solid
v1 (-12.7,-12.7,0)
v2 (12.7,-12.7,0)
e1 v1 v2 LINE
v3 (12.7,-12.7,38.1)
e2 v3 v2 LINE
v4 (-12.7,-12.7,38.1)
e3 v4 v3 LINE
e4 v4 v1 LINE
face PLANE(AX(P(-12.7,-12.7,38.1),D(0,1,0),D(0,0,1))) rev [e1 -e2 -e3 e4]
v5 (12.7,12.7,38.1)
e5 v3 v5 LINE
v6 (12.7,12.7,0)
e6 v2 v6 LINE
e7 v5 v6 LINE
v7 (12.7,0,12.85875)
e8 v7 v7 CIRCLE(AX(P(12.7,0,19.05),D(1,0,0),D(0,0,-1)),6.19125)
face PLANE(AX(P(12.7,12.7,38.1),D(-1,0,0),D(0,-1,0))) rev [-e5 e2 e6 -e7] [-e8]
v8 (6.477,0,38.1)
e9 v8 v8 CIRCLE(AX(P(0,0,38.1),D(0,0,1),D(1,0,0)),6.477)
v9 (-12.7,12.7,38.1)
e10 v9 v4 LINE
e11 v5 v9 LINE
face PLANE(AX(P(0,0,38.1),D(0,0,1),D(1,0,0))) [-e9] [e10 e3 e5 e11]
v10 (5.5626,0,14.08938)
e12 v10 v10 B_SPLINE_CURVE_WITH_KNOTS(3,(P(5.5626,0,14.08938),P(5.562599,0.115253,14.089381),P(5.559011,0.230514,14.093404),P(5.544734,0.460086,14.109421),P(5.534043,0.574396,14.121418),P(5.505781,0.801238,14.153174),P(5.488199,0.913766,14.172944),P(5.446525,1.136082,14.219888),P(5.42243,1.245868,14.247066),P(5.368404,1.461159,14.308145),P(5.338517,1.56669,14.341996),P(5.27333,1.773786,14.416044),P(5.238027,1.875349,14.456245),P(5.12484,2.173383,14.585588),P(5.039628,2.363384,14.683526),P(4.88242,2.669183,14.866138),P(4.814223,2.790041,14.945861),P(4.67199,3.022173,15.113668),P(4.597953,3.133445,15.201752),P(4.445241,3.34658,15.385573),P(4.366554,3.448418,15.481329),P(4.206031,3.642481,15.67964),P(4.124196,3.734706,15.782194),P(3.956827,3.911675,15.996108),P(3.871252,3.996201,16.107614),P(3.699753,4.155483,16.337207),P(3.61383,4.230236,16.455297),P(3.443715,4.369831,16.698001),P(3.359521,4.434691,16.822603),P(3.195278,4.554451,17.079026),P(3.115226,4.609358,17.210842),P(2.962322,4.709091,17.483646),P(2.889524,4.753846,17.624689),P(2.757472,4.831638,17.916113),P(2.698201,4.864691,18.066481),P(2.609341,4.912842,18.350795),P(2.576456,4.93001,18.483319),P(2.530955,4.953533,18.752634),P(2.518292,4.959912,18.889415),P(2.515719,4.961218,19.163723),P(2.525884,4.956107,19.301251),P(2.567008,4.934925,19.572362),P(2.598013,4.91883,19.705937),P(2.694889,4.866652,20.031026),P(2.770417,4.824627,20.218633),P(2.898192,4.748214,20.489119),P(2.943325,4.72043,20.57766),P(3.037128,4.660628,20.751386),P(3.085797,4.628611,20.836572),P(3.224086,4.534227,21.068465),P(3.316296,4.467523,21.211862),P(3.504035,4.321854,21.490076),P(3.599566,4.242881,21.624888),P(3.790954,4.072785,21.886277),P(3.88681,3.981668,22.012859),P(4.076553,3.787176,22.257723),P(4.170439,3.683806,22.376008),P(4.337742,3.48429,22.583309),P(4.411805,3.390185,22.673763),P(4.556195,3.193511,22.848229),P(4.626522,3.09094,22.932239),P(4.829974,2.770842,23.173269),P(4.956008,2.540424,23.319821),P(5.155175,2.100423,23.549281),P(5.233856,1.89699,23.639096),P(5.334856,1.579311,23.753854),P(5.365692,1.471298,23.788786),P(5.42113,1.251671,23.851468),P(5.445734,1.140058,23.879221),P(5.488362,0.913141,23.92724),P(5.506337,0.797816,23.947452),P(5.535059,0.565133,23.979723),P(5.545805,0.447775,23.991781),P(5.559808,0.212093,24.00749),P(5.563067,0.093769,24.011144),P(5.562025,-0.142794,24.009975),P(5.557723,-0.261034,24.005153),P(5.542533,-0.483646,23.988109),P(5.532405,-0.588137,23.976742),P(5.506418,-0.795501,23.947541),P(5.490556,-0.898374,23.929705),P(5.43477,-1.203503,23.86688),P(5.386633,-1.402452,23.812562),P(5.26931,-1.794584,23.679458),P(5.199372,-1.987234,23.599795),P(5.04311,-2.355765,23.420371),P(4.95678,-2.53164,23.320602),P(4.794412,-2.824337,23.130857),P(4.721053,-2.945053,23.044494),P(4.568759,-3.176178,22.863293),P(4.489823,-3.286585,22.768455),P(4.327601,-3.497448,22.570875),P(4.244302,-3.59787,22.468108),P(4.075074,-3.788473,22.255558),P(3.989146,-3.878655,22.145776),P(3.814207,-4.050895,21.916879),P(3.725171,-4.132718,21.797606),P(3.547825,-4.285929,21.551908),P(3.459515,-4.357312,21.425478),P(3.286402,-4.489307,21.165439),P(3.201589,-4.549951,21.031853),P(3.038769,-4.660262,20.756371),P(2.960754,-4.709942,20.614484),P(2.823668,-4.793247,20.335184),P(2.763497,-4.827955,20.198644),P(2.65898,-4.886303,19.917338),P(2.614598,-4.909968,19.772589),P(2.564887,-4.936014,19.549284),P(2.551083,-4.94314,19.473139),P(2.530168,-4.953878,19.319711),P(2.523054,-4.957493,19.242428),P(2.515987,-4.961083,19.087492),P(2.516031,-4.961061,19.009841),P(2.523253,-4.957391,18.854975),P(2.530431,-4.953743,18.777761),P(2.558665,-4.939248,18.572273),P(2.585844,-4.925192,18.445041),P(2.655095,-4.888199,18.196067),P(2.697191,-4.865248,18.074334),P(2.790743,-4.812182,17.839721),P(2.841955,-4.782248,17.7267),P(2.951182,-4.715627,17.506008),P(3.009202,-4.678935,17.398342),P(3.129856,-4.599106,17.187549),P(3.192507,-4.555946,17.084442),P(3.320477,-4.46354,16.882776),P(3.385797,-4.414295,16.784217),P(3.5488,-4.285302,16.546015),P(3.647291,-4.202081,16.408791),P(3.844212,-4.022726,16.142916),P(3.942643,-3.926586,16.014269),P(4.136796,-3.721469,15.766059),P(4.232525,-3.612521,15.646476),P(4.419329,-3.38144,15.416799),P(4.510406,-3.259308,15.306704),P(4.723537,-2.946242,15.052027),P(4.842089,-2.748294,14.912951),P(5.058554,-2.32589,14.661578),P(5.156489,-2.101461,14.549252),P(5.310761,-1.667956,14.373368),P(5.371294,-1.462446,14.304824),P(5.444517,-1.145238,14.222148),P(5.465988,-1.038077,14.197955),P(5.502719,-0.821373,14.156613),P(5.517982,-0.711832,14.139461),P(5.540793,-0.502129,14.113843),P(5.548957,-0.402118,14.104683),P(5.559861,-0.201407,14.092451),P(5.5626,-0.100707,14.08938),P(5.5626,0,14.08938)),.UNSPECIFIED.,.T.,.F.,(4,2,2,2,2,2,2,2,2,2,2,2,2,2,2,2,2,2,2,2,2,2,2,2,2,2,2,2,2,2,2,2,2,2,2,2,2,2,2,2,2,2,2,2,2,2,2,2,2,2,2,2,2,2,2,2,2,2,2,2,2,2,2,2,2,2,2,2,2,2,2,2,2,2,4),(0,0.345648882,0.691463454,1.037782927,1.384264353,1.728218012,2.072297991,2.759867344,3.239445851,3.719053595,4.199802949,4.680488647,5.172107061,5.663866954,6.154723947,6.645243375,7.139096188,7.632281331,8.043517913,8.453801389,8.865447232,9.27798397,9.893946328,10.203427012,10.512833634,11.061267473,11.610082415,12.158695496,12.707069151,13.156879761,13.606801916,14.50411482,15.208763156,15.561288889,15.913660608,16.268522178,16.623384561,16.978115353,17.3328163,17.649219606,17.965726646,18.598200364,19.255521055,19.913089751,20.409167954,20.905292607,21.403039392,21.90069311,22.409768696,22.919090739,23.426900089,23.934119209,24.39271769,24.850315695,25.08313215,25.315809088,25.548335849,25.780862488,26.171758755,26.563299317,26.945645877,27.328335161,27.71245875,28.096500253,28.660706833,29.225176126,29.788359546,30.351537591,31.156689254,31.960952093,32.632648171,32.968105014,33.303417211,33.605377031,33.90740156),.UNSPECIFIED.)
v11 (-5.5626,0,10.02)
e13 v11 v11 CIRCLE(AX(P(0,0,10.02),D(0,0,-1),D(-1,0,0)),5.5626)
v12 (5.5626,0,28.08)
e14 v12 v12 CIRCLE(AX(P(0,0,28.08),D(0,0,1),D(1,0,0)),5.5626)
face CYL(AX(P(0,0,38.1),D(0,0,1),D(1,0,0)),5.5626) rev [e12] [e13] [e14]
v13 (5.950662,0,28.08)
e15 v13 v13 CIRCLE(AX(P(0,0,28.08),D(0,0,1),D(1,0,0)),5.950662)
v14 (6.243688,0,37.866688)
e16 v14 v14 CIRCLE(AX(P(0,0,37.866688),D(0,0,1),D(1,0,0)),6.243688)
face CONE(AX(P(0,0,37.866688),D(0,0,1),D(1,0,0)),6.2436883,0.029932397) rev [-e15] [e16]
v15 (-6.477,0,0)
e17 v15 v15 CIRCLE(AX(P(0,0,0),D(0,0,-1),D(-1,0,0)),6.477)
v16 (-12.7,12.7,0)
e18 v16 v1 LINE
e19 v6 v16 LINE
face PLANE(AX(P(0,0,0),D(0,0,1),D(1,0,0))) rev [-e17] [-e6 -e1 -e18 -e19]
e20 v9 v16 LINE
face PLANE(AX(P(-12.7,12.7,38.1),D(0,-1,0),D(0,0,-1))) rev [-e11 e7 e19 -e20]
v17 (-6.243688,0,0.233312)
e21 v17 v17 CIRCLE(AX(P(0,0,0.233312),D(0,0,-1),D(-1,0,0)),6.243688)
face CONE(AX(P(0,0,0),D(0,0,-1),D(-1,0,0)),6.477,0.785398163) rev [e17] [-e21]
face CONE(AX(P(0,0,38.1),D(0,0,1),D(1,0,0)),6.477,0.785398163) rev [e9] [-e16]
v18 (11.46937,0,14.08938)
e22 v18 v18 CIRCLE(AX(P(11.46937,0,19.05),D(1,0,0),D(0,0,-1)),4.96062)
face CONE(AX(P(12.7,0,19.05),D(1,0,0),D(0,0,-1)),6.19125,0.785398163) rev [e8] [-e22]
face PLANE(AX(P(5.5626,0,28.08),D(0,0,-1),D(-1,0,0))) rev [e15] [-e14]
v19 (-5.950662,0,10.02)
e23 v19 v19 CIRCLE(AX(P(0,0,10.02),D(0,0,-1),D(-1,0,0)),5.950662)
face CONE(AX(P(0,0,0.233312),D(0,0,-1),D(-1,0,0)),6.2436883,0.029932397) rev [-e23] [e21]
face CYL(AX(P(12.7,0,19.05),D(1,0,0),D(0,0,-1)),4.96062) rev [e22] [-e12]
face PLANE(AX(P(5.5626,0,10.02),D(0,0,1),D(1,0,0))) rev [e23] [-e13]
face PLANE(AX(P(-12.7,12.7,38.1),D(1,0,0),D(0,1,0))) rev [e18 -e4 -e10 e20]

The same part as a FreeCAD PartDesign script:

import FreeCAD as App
import Part
import Sketcher

V = App.Vector
Q = App.Units.Quantity

doc = App.newDocument("Part")
body = doc.addObject("PartDesign::Body", "Body")

sketch1 = body.newObject("Sketcher::SketchObject", "Sketch")
sketch1.AttachmentSupport = (doc.getObject("XY_Plane"), [""])
sketch1.MapMode = "FlatFace"
sketch1.addGeometry([
    Part.LineSegment(V(-13, 13, 0), V(-13, -13, 0)),
    Part.LineSegment(V(-13, -13, 0), V(13, -13, 0)),
    Part.LineSegment(V(13, -13, 0), V(13, 13, 0)),
    Part.LineSegment(V(13, 13, 0), V(-13, 13, 0)),
], False)
sketch1.addConstraint([
    Sketcher.Constraint("Coincident", 0, 2, 1, 1),
    Sketcher.Constraint("Coincident", 1, 2, 2, 1),
    Sketcher.Constraint("Coincident", 2, 2, 3, 1),
    Sketcher.Constraint("Coincident", 3, 2, 0, 1),
    Sketcher.Constraint("Vertical", 0),
    Sketcher.Constraint("Horizontal", 1),
    Sketcher.Constraint("Vertical", 2),
    Sketcher.Constraint("Horizontal", 3),
    Sketcher.Constraint("Symmetric", 0, 2, 2, 2, -1, 1),
    Sketcher.Constraint("Equal", 3, 0),
    Sketcher.Constraint("DistanceX", 1, 1, 1, 2, Q("1 in")),
])
pad1 = body.newObject("PartDesign::Pad", "Pad")
pad1.Profile = sketch1
pad1.Length = Q("1.5 in")

sketch2 = body.newObject("Sketcher::SketchObject", "Sketch001")
sketch2.AttachmentSupport = (doc.getObject("YZ_Plane"), [""])
sketch2.MapMode = "FlatFace"
sketch2.addGeometry([
    Part.LineSegment(V(0, 0, 0), V(0, 38.1, 0)),
    Part.LineSegment(V(0, 38.1, 0), V(-6.48, 38.1, 0)),
    Part.LineSegment(V(-6.48, 38.1, 0), V(-6.24, 37.87, 0)),
    Part.LineSegment(V(-6.24, 37.87, 0), V(-5.95, 28.08, 0)),
    Part.LineSegment(V(-5.95, 28.08, 0), V(-5.56, 28.08, 0)),
    Part.LineSegment(V(-5.56, 28.08, 0), V(-5.56, 0, 0)),
    Part.LineSegment(V(-5.56, 0, 0), V(0, 0, 0)),
], False)
sketch2.addConstraint([
    Sketcher.Constraint("Coincident", 0, 2, 1, 1),
    Sketcher.Constraint("Coincident", 1, 2, 2, 1),
    Sketcher.Constraint("Coincident", 2, 2, 3, 1),
    Sketcher.Constraint("Coincident", 3, 2, 4, 1),
    Sketcher.Constraint("Coincident", 4, 2, 5, 1),
    Sketcher.Constraint("Coincident", 5, 2, 6, 1),
    Sketcher.Constraint("Coincident", 6, 2, 0, 1),
    Sketcher.Constraint("Vertical", 0),
    Sketcher.Constraint("Horizontal", 1),
    Sketcher.Constraint("Horizontal", 4),
    Sketcher.Constraint("Vertical", 5),
    Sketcher.Constraint("Horizontal", 6),
    Sketcher.Constraint("Coincident", 6, 2, -1, 1),
    Sketcher.Constraint("DistanceY", 0, 1, 0, 2, Q("1.5 in")),
    Sketcher.Constraint("Angle", 2, Q("-45 deg")),
    Sketcher.Constraint("DistanceX", 1, 2, 1, 1, Q("0.255 in")),
    Sketcher.Constraint("DistanceX", 6, 1, 6, 2, Q("0.219 in")),
    Sketcher.Constraint("DistanceY", 5, 2, 5, 1, 28.08),
    Sketcher.Constraint("DistanceX", 4, 1, 4, 2, 0.388062),
    Sketcher.Constraint("DistanceX", 2, 2, -1, 1, 6.243688),
])
groove = body.newObject("PartDesign::Groove", "Groove")
groove.Profile = sketch2
groove.ReferenceAxis = (sketch2, ["V_Axis"])
groove.Angle = 360

sketch3 = body.newObject("Sketcher::SketchObject", "Sketch002")
sketch3.AttachmentSupport = (doc.getObject("YZ_Plane"), [""])
sketch3.MapMode = "FlatFace"
sketch3.addGeometry([
    Part.LineSegment(V(0, 38.1, 0), V(0, 0, 0)),
    Part.LineSegment(V(0, 0, 0), V(6.48, 0, 0)),
    Part.LineSegment(V(6.48, 0, 0), V(6.24, 0.23, 0)),
    Part.LineSegment(V(6.24, 0.23, 0), V(5.95, 10.02, 0)),
    Part.LineSegment(V(5.95, 10.02, 0), V(5.56, 10.02, 0)),
    Part.LineSegment(V(5.56, 10.02, 0), V(5.56, 38.1, 0)),
    Part.LineSegment(V(5.56, 38.1, 0), V(0, 38.1, 0)),
], False)
sketch3.addConstraint([
    Sketcher.Constraint("Coincident", 0, 2, 1, 1),
    Sketcher.Constraint("Coincident", 1, 2, 2, 1),
    Sketcher.Constraint("Coincident", 2, 2, 3, 1),
    Sketcher.Constraint("Coincident", 3, 2, 4, 1),
    Sketcher.Constraint("Coincident", 4, 2, 5, 1),
    Sketcher.Constraint("Coincident", 5, 2, 6, 1),
    Sketcher.Constraint("Coincident", 6, 2, 0, 1),
    Sketcher.Constraint("Vertical", 0),
    Sketcher.Constraint("Horizontal", 1),
    Sketcher.Constraint("Horizontal", 4),
    Sketcher.Constraint("Vertical", 5),
    Sketcher.Constraint("Horizontal", 6),
    Sketcher.Constraint("Coincident", 0, 2, -1, 1),
    Sketcher.Constraint("DistanceY", 0, 2, 0, 1, Q("1.5 in")),
    Sketcher.Constraint("Angle", 2, Q("135 deg")),
    Sketcher.Constraint("DistanceX", 1, 1, 1, 2, Q("0.255 in")),
    Sketcher.Constraint("DistanceX", 6, 2, 6, 1, Q("0.219 in")),
    Sketcher.Constraint("DistanceY", 5, 1, 5, 2, 28.08),
    Sketcher.Constraint("DistanceX", 4, 2, 4, 1, 0.388062),
    Sketcher.Constraint("DistanceX", -1, 1, 2, 2, 6.243688),
])
groove2 = body.newObject("PartDesign::Groove", "Groove001")
groove2.Profile = sketch3
groove2.ReferenceAxis = (sketch3, ["V_Axis"])
groove2.Angle = 360

sketch4 = body.newObject("Sketcher::SketchObject", "Sketch003")
sketch4.AttachmentSupport = (doc.getObject("YZ_Plane"), [""])
sketch4.MapMode = "FlatFace"
sketch4.AttachmentOffset = App.Placement(V(0, 0, 0.5 * 25.4), App.Rotation())
sketch4.addGeometry(Part.Circle(V(0, 19.1, 0), V(0, 0, 1), 5), False)
sketch4.addConstraint([
    Sketcher.Constraint("PointOnObject", 0, 3, -2),
    Sketcher.Constraint("Diameter", 0, Q("0.3906 in")),
    Sketcher.Constraint("DistanceY", -1, 1, 0, 3, Q("0.75 in")),
])
doc.recompute()
hole = body.newObject("PartDesign::Hole", "Hole")
hole.Profile = sketch4
hole.ThreadType = "None"
hole.Diameter = Q("0.3906 in")
hole.DepthType = "Dimension"
hole.Depth = Q("0.5 in")
hole.DrillPoint = "Angled"
hole.DrillPointAngle = 118
hole.HoleCutType = "Countersink"
hole.HoleCutDiameter = Q("0.4875 in")
hole.HoleCutCountersinkAngle = 90

doc.recompute()
